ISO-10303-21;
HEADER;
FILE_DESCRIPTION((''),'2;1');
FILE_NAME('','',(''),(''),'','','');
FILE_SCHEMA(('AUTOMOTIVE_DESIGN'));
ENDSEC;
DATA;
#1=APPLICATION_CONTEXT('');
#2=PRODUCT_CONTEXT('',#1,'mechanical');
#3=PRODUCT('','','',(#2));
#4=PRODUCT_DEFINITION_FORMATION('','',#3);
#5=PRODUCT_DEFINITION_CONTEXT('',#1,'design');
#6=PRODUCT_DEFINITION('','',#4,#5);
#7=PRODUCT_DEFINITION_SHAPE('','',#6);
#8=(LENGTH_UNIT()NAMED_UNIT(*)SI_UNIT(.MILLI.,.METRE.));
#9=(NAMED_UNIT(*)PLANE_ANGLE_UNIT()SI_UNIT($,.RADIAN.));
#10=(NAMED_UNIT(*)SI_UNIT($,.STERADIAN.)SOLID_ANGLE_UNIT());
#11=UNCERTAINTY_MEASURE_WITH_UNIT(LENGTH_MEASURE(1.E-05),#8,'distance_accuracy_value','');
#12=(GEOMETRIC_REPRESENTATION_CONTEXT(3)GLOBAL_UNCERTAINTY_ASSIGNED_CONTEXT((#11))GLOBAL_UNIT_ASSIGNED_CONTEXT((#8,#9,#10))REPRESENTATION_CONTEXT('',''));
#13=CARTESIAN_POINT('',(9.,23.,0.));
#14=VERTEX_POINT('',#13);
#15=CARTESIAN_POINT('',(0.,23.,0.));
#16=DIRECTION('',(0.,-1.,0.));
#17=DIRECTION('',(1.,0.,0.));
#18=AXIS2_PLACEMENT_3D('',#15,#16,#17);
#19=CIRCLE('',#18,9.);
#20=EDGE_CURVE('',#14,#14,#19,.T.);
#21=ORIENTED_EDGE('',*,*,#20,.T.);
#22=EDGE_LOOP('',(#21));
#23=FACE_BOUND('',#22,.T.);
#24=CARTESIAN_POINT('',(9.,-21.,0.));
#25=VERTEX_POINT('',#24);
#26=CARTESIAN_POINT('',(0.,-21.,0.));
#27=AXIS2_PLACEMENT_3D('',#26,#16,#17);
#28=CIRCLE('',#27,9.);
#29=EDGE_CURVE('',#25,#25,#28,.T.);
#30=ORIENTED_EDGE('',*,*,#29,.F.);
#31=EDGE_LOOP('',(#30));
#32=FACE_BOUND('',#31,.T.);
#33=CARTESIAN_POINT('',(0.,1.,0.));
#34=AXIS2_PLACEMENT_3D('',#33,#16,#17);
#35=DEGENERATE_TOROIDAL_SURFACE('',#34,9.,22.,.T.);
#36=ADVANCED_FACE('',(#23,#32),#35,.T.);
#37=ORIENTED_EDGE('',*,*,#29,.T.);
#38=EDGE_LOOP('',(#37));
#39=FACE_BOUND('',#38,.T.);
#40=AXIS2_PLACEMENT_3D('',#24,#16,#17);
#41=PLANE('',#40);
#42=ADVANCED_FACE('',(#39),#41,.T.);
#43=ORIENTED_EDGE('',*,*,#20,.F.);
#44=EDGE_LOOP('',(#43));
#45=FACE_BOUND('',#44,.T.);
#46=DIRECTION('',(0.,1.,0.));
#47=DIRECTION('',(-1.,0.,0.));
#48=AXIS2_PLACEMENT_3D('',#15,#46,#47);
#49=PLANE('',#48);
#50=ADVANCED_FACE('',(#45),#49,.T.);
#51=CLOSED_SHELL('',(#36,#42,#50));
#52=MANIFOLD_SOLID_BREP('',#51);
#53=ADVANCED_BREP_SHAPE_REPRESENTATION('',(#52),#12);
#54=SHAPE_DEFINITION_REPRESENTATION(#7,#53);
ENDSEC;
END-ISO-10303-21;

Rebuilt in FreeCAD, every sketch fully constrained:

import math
import FreeCAD as App
import Part
import Sketcher
Q = App.Units.Quantity

doc = App.newDocument("Part")
body = doc.addObject("PartDesign::Body", "Body")

sketch1 = doc.addObject("Sketcher::SketchObject", "Sketch")
body.addObject(sketch1)
sketch1.AttachmentSupport = (doc.XY_Plane, [""])
sketch1.MapMode = "FlatFace"
sketch1.addGeometry(Part.LineSegment(App.Vector(9, 23, 0), App.Vector(0, 23, 0)), False)
sketch1.addGeometry(Part.LineSegment(App.Vector(0, 23, 0), App.Vector(0, -21, 0)), False)
sketch1.addGeometry(Part.LineSegment(App.Vector(0, -21, 0), App.Vector(9, -21, 0)), False)
sketch1.addGeometry(Part.ArcOfCircle(Part.Circle(App.Vector(9, 1, 0), App.Vector(0, 0, 1), 22), math.radians(-90), math.radians(90)), False)
sketch1.addConstraint(Sketcher.Constraint("Coincident", 0, 2, 1, 1))
sketch1.addConstraint(Sketcher.Constraint("Coincident", 1, 2, 2, 1))
sketch1.addConstraint(Sketcher.Constraint("Tangent", 2, 2, 3, 1))
sketch1.addConstraint(Sketcher.Constraint("Tangent", 3, 2, 0, 1))
sketch1.addConstraint(Sketcher.Constraint("Horizontal", 0))
sketch1.addConstraint(Sketcher.Constraint("Vertical", 1))
sketch1.addConstraint(Sketcher.Constraint("Horizontal", 2))
sketch1.addConstraint(Sketcher.Constraint("PointOnObject", 0, 2, -2))
sketch1.addConstraint(Sketcher.Constraint("Radius", 3, Q("22 mm")))
sketch1.addConstraint(Sketcher.Constraint("DistanceX", 0, 2, 0, 1, Q("9 mm")))
sketch1.addConstraint(Sketcher.Constraint("DistanceY", -1, 1, 3, 3, Q("1 mm")))
revolution = doc.addObject("PartDesign::Revolution", "Revolution")
body.addObject(revolution)
revolution.Profile = sketch1
revolution.ReferenceAxis = (sketch1, ["V_Axis"])
revolution.Angle = 360

doc.recompute()
